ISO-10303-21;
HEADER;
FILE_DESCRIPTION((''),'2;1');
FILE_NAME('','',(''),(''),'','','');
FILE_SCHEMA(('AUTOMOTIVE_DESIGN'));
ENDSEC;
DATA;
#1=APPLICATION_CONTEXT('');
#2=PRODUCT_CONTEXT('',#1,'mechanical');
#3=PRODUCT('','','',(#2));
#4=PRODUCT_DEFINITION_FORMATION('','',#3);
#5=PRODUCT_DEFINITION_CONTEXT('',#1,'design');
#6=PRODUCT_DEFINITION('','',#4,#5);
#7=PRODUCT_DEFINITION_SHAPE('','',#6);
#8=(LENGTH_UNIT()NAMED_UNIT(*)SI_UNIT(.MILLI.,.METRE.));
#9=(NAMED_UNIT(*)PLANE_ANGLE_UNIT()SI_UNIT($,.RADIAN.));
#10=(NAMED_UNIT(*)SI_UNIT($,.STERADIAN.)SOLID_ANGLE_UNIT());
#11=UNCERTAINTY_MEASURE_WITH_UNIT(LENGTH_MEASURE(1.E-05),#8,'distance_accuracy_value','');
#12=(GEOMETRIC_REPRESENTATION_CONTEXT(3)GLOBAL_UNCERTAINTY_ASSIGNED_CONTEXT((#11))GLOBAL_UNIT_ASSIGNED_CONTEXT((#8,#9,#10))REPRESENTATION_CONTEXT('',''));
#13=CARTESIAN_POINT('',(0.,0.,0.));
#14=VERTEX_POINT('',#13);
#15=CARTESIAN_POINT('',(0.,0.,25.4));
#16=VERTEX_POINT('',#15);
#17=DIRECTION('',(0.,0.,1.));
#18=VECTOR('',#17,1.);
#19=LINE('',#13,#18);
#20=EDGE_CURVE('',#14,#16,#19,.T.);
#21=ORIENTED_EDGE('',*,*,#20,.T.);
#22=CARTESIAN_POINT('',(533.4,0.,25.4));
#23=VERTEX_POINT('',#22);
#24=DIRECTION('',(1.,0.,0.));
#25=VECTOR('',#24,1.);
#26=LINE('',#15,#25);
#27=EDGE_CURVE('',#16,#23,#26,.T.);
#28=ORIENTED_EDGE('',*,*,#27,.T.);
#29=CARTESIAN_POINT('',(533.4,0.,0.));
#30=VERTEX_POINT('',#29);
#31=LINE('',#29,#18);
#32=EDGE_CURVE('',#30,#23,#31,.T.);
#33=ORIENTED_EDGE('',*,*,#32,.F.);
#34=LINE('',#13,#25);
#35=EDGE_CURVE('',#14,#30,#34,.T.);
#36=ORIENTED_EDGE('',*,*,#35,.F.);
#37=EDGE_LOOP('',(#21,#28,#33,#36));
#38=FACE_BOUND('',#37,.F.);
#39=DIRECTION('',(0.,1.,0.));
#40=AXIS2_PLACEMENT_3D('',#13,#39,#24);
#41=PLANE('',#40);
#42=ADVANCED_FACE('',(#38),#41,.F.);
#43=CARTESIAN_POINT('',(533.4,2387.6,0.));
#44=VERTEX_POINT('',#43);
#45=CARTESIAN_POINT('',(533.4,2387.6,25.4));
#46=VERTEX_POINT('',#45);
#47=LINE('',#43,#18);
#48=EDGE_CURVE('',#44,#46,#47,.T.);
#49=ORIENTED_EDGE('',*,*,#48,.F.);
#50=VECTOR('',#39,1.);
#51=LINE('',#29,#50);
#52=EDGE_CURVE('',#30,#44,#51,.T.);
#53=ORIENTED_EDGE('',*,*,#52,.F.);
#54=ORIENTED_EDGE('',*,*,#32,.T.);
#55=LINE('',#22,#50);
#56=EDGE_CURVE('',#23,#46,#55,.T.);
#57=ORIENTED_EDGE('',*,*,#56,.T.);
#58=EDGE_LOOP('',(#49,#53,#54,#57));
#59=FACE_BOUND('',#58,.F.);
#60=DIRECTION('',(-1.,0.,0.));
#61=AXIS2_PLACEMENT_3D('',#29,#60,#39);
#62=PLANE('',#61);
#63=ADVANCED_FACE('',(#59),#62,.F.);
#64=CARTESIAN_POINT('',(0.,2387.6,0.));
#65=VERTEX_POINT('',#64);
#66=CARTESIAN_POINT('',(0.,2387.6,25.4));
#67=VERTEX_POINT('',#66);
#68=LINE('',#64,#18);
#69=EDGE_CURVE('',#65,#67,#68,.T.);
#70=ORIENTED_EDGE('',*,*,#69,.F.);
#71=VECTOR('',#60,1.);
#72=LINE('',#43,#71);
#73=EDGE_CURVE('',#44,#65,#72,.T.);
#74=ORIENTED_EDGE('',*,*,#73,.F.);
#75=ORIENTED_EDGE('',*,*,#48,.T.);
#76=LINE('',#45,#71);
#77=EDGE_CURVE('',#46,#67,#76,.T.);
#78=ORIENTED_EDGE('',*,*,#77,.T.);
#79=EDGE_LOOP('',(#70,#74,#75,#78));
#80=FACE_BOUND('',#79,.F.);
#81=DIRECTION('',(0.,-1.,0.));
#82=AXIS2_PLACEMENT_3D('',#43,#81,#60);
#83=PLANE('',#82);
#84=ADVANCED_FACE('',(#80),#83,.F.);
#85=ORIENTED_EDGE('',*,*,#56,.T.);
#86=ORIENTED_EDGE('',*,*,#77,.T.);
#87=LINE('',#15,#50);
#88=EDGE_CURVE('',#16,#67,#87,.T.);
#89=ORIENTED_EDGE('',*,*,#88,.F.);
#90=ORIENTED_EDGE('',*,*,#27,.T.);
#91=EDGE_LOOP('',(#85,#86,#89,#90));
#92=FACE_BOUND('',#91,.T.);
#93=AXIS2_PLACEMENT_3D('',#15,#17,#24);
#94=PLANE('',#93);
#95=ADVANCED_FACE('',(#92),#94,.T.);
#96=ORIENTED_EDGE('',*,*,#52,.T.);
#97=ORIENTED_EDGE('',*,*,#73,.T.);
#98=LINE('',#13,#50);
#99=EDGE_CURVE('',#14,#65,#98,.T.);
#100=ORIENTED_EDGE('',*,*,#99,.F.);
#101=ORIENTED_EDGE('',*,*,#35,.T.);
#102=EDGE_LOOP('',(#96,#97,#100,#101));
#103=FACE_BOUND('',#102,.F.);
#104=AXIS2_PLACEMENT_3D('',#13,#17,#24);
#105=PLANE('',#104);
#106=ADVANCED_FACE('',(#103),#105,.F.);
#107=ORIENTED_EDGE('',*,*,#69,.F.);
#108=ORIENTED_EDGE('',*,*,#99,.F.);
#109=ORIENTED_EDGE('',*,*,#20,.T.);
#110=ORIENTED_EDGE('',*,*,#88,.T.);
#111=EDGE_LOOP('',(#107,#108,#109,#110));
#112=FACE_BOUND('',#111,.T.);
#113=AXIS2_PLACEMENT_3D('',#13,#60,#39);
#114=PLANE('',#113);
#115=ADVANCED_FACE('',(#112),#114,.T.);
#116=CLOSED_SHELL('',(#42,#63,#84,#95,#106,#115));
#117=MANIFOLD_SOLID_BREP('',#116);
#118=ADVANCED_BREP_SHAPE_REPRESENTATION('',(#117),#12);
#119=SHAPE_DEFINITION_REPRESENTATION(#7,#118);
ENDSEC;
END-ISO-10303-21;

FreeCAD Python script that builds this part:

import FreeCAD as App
import Part
import Sketcher
from FreeCAD import Vector
Q = App.Units.Quantity


def add_polygon(sketch, points):
    """Adds a closed chain of lines whose ends are joined by coincident constraints."""
    first, n = sketch.GeometryCount, len(points)
    for a, b in zip(points, points[1:] + points[:1]):
        sketch.addGeometry(Part.LineSegment(App.Vector(*a, 0), App.Vector(*b, 0)), False)
    for i in range(n):
        sketch.addConstraint(Sketcher.Constraint("Coincident", first + i, 2, first + (i + 1) % n, 1))

doc = App.newDocument("Part")
params = doc.addObject("Spreadsheet::Sheet", "Params")
for row, (alias, value) in enumerate([
    ("sketch1_width", "21 in"),
    ("sketch1_height", "94 in"),
    ("pad1_length", "1 in"),
], start=1):
    params.set(f"A{row}", alias)
    params.set(f"B{row}", "=" + value)
    params.setAlias(f"B{row}", alias)

body = doc.addObject("PartDesign::Body", "Body")

# Sketch on XY plane
sketch1 = body.newObject("Sketcher::SketchObject", "Sketch")
sketch1.AttachmentSupport = (doc.getObject("XY_Plane"), [""])
sketch1.MapMode = "FlatFace"
add_polygon(sketch1, [(0, 2387.6), (0, 0), (533.4, 0), (533.4, 2387.6)])  # lines 0-3
sketch1.addConstraint([
    Sketcher.Constraint("Vertical", 0),
    Sketcher.Constraint("Horizontal", 1),
    Sketcher.Constraint("Vertical", 2),
    Sketcher.Constraint("Horizontal", 3),
    Sketcher.Constraint("Coincident", 0, 2, -1, 1),
    Sketcher.Constraint("DistanceX", 1, 1, 1, 2, Q("21 in")),
    Sketcher.Constraint("DistanceY", 0, 2, 0, 1, Q("94 in")),
])
sketch1.setExpression("Constraints[9]", "Params.sketch1_width")
sketch1.setExpression("Constraints[10]", "Params.sketch1_height")
pad1 = body.newObject("PartDesign::Pad", "Pad")
pad1.Profile = sketch1
pad1.setExpression("Length", "Params.pad1_length")

doc.recompute()
